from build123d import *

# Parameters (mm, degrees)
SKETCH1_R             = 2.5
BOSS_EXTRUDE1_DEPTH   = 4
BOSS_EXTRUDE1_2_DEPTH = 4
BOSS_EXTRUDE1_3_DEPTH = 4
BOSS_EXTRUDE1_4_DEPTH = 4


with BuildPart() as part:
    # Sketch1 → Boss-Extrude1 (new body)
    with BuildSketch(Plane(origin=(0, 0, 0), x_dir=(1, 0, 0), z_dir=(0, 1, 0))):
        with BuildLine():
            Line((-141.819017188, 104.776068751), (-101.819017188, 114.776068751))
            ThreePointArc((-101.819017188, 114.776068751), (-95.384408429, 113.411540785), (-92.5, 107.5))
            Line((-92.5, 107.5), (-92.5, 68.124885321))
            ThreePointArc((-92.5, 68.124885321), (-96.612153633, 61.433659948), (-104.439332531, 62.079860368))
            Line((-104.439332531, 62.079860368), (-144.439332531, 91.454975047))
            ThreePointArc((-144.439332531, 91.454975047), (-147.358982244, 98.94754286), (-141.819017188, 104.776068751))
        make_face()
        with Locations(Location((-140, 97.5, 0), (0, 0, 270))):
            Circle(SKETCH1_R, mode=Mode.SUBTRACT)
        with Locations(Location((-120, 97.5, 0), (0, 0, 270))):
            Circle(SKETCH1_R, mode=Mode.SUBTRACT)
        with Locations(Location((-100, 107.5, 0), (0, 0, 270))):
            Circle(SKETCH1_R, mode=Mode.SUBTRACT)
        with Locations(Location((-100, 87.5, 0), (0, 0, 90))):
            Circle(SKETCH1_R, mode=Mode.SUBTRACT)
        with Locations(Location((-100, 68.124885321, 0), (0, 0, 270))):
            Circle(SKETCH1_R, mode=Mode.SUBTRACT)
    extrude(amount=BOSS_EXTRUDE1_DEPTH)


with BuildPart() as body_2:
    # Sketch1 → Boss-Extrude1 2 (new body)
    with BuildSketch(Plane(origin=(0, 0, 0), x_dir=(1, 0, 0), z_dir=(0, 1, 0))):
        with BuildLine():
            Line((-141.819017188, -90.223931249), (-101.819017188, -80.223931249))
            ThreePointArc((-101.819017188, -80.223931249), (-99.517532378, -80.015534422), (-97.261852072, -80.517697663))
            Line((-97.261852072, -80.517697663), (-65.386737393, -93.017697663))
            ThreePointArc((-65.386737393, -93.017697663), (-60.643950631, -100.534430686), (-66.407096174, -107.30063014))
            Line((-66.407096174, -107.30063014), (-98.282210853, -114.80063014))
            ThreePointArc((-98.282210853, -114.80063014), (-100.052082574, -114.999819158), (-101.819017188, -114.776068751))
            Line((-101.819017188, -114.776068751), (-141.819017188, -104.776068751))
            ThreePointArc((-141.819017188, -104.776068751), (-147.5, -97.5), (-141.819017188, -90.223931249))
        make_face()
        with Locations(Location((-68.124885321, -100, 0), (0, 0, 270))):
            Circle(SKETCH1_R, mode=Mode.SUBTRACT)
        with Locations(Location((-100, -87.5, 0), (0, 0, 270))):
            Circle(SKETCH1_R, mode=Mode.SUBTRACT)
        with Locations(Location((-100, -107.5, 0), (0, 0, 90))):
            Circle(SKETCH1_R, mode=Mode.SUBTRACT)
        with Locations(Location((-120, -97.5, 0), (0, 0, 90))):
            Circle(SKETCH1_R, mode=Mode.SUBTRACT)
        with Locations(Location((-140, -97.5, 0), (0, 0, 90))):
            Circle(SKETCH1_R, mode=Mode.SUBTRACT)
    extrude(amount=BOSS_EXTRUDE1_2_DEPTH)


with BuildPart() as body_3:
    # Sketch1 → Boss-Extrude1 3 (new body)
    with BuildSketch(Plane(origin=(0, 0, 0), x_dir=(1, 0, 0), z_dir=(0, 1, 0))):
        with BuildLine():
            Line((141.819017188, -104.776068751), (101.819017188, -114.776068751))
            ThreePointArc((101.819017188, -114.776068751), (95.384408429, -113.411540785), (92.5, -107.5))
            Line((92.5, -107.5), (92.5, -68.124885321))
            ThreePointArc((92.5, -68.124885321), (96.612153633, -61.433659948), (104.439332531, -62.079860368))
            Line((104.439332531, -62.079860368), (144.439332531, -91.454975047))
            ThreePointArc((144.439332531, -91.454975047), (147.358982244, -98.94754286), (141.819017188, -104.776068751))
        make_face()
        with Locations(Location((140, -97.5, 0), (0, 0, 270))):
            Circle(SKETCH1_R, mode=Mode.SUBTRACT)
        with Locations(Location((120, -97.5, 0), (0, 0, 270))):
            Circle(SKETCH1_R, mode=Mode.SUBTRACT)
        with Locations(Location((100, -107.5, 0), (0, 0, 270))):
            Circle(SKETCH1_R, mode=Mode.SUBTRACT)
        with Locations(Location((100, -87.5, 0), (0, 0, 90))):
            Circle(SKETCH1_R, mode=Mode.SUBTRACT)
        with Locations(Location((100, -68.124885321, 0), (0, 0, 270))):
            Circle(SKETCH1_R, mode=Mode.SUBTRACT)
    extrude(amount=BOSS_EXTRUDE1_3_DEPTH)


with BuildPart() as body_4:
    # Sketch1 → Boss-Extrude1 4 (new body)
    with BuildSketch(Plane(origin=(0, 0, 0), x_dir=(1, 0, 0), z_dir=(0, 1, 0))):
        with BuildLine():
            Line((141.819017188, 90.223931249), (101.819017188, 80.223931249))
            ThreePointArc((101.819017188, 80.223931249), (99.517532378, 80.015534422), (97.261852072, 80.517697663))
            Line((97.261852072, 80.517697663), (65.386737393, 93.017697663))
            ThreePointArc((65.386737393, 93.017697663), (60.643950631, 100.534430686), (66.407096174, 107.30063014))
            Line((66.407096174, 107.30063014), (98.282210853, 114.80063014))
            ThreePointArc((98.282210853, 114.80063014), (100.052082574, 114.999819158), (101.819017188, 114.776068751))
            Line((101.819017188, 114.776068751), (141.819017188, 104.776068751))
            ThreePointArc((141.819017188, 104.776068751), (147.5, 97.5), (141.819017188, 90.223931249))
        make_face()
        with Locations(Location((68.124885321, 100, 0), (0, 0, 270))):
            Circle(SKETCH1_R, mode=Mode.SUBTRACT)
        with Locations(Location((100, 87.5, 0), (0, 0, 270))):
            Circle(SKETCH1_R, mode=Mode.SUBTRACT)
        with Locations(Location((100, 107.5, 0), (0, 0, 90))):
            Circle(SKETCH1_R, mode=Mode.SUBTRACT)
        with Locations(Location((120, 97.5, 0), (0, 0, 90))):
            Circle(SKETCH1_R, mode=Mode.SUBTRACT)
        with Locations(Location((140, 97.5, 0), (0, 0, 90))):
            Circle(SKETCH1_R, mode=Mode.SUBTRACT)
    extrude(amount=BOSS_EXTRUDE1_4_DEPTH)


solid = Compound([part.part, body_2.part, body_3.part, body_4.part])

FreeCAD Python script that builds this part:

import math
import FreeCAD as App
import Part
import Sketcher
from FreeCAD import Vector

doc = App.newDocument("Part")
body = doc.addObject("PartDesign::Body", "Body")

sketch1 = body.newObject("Sketcher::SketchObject", "Sketch")
sketch1.AttachmentSupport = (doc.getObject("XZ_Plane"), [""])
sketch1.MapMode = "FlatFace"
sketch1.addGeometry([
    Part.LineSegment(Vector(-101.8, -114.8, 0), Vector(-141.8, -104.8, 0)),
    Part.ArcOfCircle(Part.Circle(Vector(-140, -97.5, 0), Vector(0, 0, 1), 7.5), math.radians(126), math.radians(256)),
    Part.LineSegment(Vector(-144.4, -91.5, 0), Vector(-104.4, -62.1, 0)),
    Part.ArcOfCircle(Part.Circle(Vector(-100, -68.1, 0), Vector(0, 0, 1), 7.5), math.radians(0), math.radians(126)),
    Part.LineSegment(Vector(-92.5, -68.1, 0), Vector(-92.5, -107.5, 0)),
    Part.ArcOfCircle(Part.Circle(Vector(-100, -107.5, 0), Vector(0, 0, 1), 7.5), math.radians(-104), math.radians(0)),
    Part.Circle(Vector(-100, -68.1, 0), Vector(0, 0, 1), 2.5),
    Part.Circle(Vector(-100, -87.5, 0), Vector(0, 0, 1), 2.5),
    Part.Circle(Vector(-100, -107.5, 0), Vector(0, 0, 1), 2.5),
    Part.Circle(Vector(-120, -97.5, 0), Vector(0, 0, 1), 2.5),
    Part.Circle(Vector(-140, -97.5, 0), Vector(0, 0, 1), 2.5),
], False)
sketch1.addConstraint([
    Sketcher.Constraint("Tangent", 0, 2, 1, 2),
    Sketcher.Constraint("Tangent", 1, 1, 2, 1),
    Sketcher.Constraint("Tangent", 2, 2, 3, 2),
    Sketcher.Constraint("Tangent", 3, 1, 4, 1),
    Sketcher.Constraint("Tangent", 4, 2, 5, 2),
    Sketcher.Constraint("Tangent", 5, 1, 0, 1),
    Sketcher.Constraint("Vertical", 4),
    Sketcher.Constraint("Coincident", 6, 3, 3, 3),
    Sketcher.Constraint("Coincident", 8, 3, 5, 3),
    Sketcher.Constraint("Coincident", 10, 3, 1, 3),
    Sketcher.Constraint("Equal", 1, 3),
    Sketcher.Constraint("Equal", 3, 5),
    Sketcher.Constraint("Equal", 6, 7),
    Sketcher.Constraint("Equal", 7, 8),
    Sketcher.Constraint("Equal", 8, 9),
    Sketcher.Constraint("Equal", 9, 10),
    Sketcher.Constraint("Horizontal", 1, 3, 9, 3),
    Sketcher.Constraint("Vertical", 6, 3, 7, 3),
    Sketcher.Constraint("Diameter", 6, 5.0),
    Sketcher.Constraint("Radius", 1, 7.5),
    Sketcher.Constraint("DistanceX", 1, 3, -1, 1, 140.0),
    Sketcher.Constraint("DistanceX", 3, 3, -1, 1, 100.0),
    Sketcher.Constraint("DistanceX", 9, 3, -1, 1, 120.0),
    Sketcher.Constraint("DistanceY", 5, 3, 1, 3, 10.0),
    Sketcher.Constraint("DistanceY", 5, 3, 7, 3, 20.0),
    Sketcher.Constraint("DistanceY", 1, 3, -1, 1, 97.5),
    Sketcher.Constraint("DistanceY", 4, 2, 4, 1, 39.375115),
])
pad1 = body.newObject("PartDesign::Pad", "Pad")
pad1.Profile = sketch1
pad1.Length = 4
pad1.Reversed = True
body2 = doc.addObject("PartDesign::Body", "Body001")

sketch2 = body2.newObject("Sketcher::SketchObject", "Sketch001")
sketch2.AttachmentSupport = (doc.getObject("XZ_Plane001"), [""])
sketch2.MapMode = "FlatFace"
sketch2.addGeometry([
    Part.LineSegment(Vector(-101.8, 80.2, 0), Vector(-141.8, 90.2, 0)),
    Part.ArcOfCircle(Part.Circle(Vector(-140, 97.5, 0), Vector(0, 0, 1), 7.5), math.radians(104), math.radians(256)),
    Part.LineSegment(Vector(-141.8, 104.8, 0), Vector(-101.8, 114.8, 0)),
    Part.ArcOfCircle(Part.Circle(Vector(-100, 107.5, 0), Vector(0, 0, 1), 7.5), math.radians(77), math.radians(104)),
    Part.LineSegment(Vector(-98.3, 114.8, 0), Vector(-66.4, 107.3, 0)),
    Part.ArcOfCircle(Part.Circle(Vector(-68.1, 100, 0), Vector(0, 0, 1), 7.5), math.radians(-69), math.radians(77)),
    Part.LineSegment(Vector(-65.4, 93, 0), Vector(-97.3, 80.5, 0)),
    Part.ArcOfCircle(Part.Circle(Vector(-100, 87.5, 0), Vector(0, 0, 1), 7.5), math.radians(-104), math.radians(-69)),
    Part.Circle(Vector(-100, 107.5, 0), Vector(0, 0, 1), 2.5),
    Part.Circle(Vector(-68.1, 100, 0), Vector(0, 0, 1), 2.5),
    Part.Circle(Vector(-100, 87.5, 0), Vector(0, 0, 1), 2.5),
    Part.Circle(Vector(-120, 97.5, 0), Vector(0, 0, 1), 2.5),
    Part.Circle(Vector(-140, 97.5, 0), Vector(0, 0, 1), 2.5),
], False)
sketch2.addConstraint([
    Sketcher.Constraint("Tangent", 0, 2, 1, 2),
    Sketcher.Constraint("Tangent", 1, 1, 2, 1),
    Sketcher.Constraint("Tangent", 2, 2, 3, 2),
    Sketcher.Constraint("Tangent", 3, 1, 4, 1),
    Sketcher.Constraint("Tangent", 4, 2, 5, 2),
    Sketcher.Constraint("Tangent", 5, 1, 6, 1),
    Sketcher.Constraint("Tangent", 6, 2, 7, 2),
    Sketcher.Constraint("Tangent", 7, 1, 0, 1),
    Sketcher.Constraint("Coincident", 8, 3, 3, 3),
    Sketcher.Constraint("Coincident", 9, 3, 5, 3),
    Sketcher.Constraint("Coincident", 10, 3, 7, 3),
    Sketcher.Constraint("Coincident", 12, 3, 1, 3),
    Sketcher.Constraint("Equal", 1, 3),
    Sketcher.Constraint("Equal", 3, 5),
    Sketcher.Constraint("Equal", 5, 7),
    Sketcher.Constraint("Equal", 8, 9),
    Sketcher.Constraint("Equal", 9, 10),
    Sketcher.Constraint("Equal", 10, 11),
    Sketcher.Constraint("Equal", 11, 12),
    Sketcher.Constraint("Horizontal", 1, 3, 11, 3),
    Sketcher.Constraint("Vertical", 3, 3, 7, 3),
    Sketcher.Constraint("Vertical", 0, 2, 1, 1),
    Sketcher.Constraint("Diameter", 8, 5.0),
    Sketcher.Constraint("Radius", 1, 7.5),
    Sketcher.Constraint("DistanceX", 1, 3, -1, 1, 140.0),
    Sketcher.Constraint("DistanceX", 3, 3, -1, 1, 100.0),
    Sketcher.Constraint("DistanceY", -1, 1, 5, 3, 100.0),
    Sketcher.Constraint("DistanceX", 11, 3, -1, 1, 120.0),
    Sketcher.Constraint("DistanceY", 1, 3, 3, 3, 10.0),
    Sketcher.Constraint("DistanceY", -1, 1, 1, 3, 97.5),
    Sketcher.Constraint("Distance", 4, 32.745579),
])
pad2 = body2.newObject("PartDesign::Pad", "Pad001")
pad2.Profile = sketch2
pad2.Length = 4
pad2.Reversed = True
body3 = doc.addObject("PartDesign::Body", "Body002")

sketch3 = body3.newObject("Sketcher::SketchObject", "Sketch002")
sketch3.AttachmentSupport = (doc.getObject("XZ_Plane002"), [""])
sketch3.MapMode = "FlatFace"
sketch3.addGeometry([
    Part.LineSegment(Vector(101.8, 114.8, 0), Vector(141.8, 104.8, 0)),
    Part.ArcOfCircle(Part.Circle(Vector(140, 97.5, 0), Vector(0, 0, 1), 7.5), math.radians(-54), math.radians(76)),
    Part.LineSegment(Vector(144.4, 91.5, 0), Vector(104.4, 62.1, 0)),
    Part.ArcOfCircle(Part.Circle(Vector(100, 68.1, 0), Vector(0, 0, 1), 7.5), math.radians(180), math.radians(306)),
    Part.LineSegment(Vector(92.5, 68.1, 0), Vector(92.5, 107.5, 0)),
    Part.ArcOfCircle(Part.Circle(Vector(100, 107.5, 0), Vector(0, 0, 1), 7.5), math.radians(76), math.radians(180)),
    Part.Circle(Vector(140, 97.5, 0), Vector(0, 0, 1), 2.5),
    Part.Circle(Vector(100, 107.5, 0), Vector(0, 0, 1), 2.5),
    Part.Circle(Vector(120, 97.5, 0), Vector(0, 0, 1), 2.5),
    Part.Circle(Vector(100, 87.5, 0), Vector(0, 0, 1), 2.5),
    Part.Circle(Vector(100, 68.1, 0), Vector(0, 0, 1), 2.5),
], False)
sketch3.addConstraint([
    Sketcher.Constraint("Tangent", 0, 2, 1, 2),
    Sketcher.Constraint("Tangent", 1, 1, 2, 1),
    Sketcher.Constraint("Tangent", 2, 2, 3, 2),
    Sketcher.Constraint("Tangent", 3, 1, 4, 1),
    Sketcher.Constraint("Tangent", 4, 2, 5, 2),
    Sketcher.Constraint("Tangent", 5, 1, 0, 1),
    Sketcher.Constraint("Vertical", 4),
    Sketcher.Constraint("Coincident", 6, 3, 1, 3),
    Sketcher.Constraint("Coincident", 7, 3, 5, 3),
    Sketcher.Constraint("Coincident", 10, 3, 3, 3),
    Sketcher.Constraint("Equal", 1, 3),
    Sketcher.Constraint("Equal", 3, 5),
    Sketcher.Constraint("Equal", 6, 7),
    Sketcher.Constraint("Equal", 7, 8),
    Sketcher.Constraint("Equal", 8, 9),
    Sketcher.Constraint("Equal", 9, 10),
    Sketcher.Constraint("Horizontal", 6, 3, 8, 3),
    Sketcher.Constraint("Vertical", 7, 3, 9, 3),
    Sketcher.Constraint("Diameter", 6, 5.0),
    Sketcher.Constraint("Radius", 1, 7.5),
    Sketcher.Constraint("DistanceX", -1, 1, 1, 3, 140.0),
    Sketcher.Constraint("DistanceX", -1, 1, 3, 3, 100.0),
    Sketcher.Constraint("DistanceX", -1, 1, 8, 3, 120.0),
    Sketcher.Constraint("DistanceY", 1, 3, 5, 3, 10.0),
    Sketcher.Constraint("DistanceY", 9, 3, 5, 3, 20.0),
    Sketcher.Constraint("DistanceY", -1, 1, 1, 3, 97.5),
    Sketcher.Constraint("DistanceY", 4, 1, 4, 2, 39.375115),
])
pad3 = body3.newObject("PartDesign::Pad", "Pad002")
pad3.Profile = sketch3
pad3.Length = 4
pad3.Reversed = True
body4 = doc.addObject("PartDesign::Body", "Body003")

sketch4 = body4.newObject("Sketcher::SketchObject", "Sketch003")
sketch4.AttachmentSupport = (doc.getObject("XZ_Plane003"), [""])
sketch4.MapMode = "FlatFace"
sketch4.addGeometry([
    Part.LineSegment(Vector(101.8, -80.2, 0), Vector(141.8, -90.2, 0)),
    Part.ArcOfCircle(Part.Circle(Vector(140, -97.5, 0), Vector(0, 0, 1), 7.5), math.radians(-76), math.radians(76)),
    Part.LineSegment(Vector(141.8, -104.8, 0), Vector(101.8, -114.8, 0)),
    Part.ArcOfCircle(Part.Circle(Vector(100, -107.5, 0), Vector(0, 0, 1), 7.5), math.radians(-103), math.radians(-76)),
    Part.LineSegment(Vector(98.3, -114.8, 0), Vector(66.4, -107.3, 0)),
    Part.ArcOfCircle(Part.Circle(Vector(68.1, -100, 0), Vector(0, 0, 1), 7.5), math.radians(111), math.radians(257)),
    Part.LineSegment(Vector(65.4, -93, 0), Vector(97.3, -80.5, 0)),
    Part.ArcOfCircle(Part.Circle(Vector(100, -87.5, 0), Vector(0, 0, 1), 7.5), math.radians(76), math.radians(111)),
    Part.Circle(Vector(100, -87.5, 0), Vector(0, 0, 1), 2.5),
    Part.Circle(Vector(140, -97.5, 0), Vector(0, 0, 1), 2.5),
    Part.Circle(Vector(120, -97.5, 0), Vector(0, 0, 1), 2.5),
    Part.Circle(Vector(68.1, -100, 0), Vector(0, 0, 1), 2.5),
    Part.Circle(Vector(100, -107.5, 0), Vector(0, 0, 1), 2.5),
], False)
sketch4.addConstraint([
    Sketcher.Constraint("Tangent", 0, 2, 1, 2),
    Sketcher.Constraint("Tangent", 1, 1, 2, 1),
    Sketcher.Constraint("Tangent", 2, 2, 3, 2),
    Sketcher.Constraint("Tangent", 3, 1, 4, 1),
    Sketcher.Constraint("Tangent", 4, 2, 5, 2),
    Sketcher.Constraint("Tangent", 5, 1, 6, 1),
    Sketcher.Constraint("Tangent", 6, 2, 7, 2),
    Sketcher.Constraint("Tangent", 7, 1, 0, 1),
    Sketcher.Constraint("Coincident", 8, 3, 7, 3),
    Sketcher.Constraint("Coincident", 9, 3, 1, 3),
    Sketcher.Constraint("Coincident", 11, 3, 5, 3),
    Sketcher.Constraint("Coincident", 12, 3, 3, 3),
    Sketcher.Constraint("Equal", 1, 3),
    Sketcher.Constraint("Equal", 3, 5),
    Sketcher.Constraint("Equal", 5, 7),
    Sketcher.Constraint("Equal", 8, 9),
    Sketcher.Constraint("Equal", 9, 10),
    Sketcher.Constraint("Equal", 10, 11),
    Sketcher.Constraint("Equal", 11, 12),
    Sketcher.Constraint("Horizontal", 9, 3, 10, 3),
    Sketcher.Constraint("Vertical", 3, 3, 7, 3),
    Sketcher.Constraint("Vertical", 0, 2, 1, 1),
    Sketcher.Constraint("Diameter", 8, 5.0),
    Sketcher.Constraint("Radius", 1, 7.5),
    Sketcher.Constraint("DistanceX", -1, 1, 1, 3, 140.0),
    Sketcher.Constraint("DistanceX", -1, 1, 3, 3, 100.0),
    Sketcher.Constraint("DistanceY", 5, 3, -1, 1, 100.0),
    Sketcher.Constraint("DistanceX", -1, 1, 10, 3, 120.0),
    Sketcher.Constraint("DistanceY", 3, 3, 1, 3, 10.0),
    Sketcher.Constraint("DistanceY", 1, 3, -1, 1, 97.5),
    Sketcher.Constraint("Distance", 4, 32.745579),
])
pad4 = body4.newObject("PartDesign::Pad", "Pad003")
pad4.Profile = sketch4
pad4.Length = 4
pad4.Reversed = True

doc.recompute()
